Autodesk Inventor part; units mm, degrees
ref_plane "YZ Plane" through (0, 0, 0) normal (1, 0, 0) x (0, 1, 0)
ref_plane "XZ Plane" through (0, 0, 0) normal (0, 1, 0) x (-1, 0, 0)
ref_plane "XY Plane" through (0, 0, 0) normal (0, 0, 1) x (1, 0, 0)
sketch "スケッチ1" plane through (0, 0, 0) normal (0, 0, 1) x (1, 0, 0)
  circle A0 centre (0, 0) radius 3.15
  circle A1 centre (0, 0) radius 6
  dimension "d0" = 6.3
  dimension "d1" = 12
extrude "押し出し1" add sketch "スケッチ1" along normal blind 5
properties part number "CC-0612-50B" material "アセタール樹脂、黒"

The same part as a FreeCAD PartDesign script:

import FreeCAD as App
import Part
import Sketcher

V = App.Vector

doc = App.newDocument("Part")
body = doc.addObject("PartDesign::Body", "Body")

sketch1 = body.newObject("Sketcher::SketchObject", "Sketch")
sketch1.AttachmentSupport = (doc.getObject("XY_Plane"), [""])
sketch1.MapMode = "FlatFace"
sketch1.addGeometry([
    Part.Circle(V(0, 0, 0), V(0, 0, 1), 6),
    Part.Circle(V(0, 0, 0), V(0, 0, 1), 3.1),
], False)
sketch1.addConstraint([
    Sketcher.Constraint("Coincident", 0, 3, -1, 1),
    Sketcher.Constraint("Coincident", 1, 3, -1, 1),
    Sketcher.Constraint("Diameter", 0, 12.0),
    Sketcher.Constraint("Diameter", 1, 6.3),
])
pad1 = body.newObject("PartDesign::Pad", "Pad")
pad1.Profile = sketch1
pad1.Length = 5

doc.recompute()
